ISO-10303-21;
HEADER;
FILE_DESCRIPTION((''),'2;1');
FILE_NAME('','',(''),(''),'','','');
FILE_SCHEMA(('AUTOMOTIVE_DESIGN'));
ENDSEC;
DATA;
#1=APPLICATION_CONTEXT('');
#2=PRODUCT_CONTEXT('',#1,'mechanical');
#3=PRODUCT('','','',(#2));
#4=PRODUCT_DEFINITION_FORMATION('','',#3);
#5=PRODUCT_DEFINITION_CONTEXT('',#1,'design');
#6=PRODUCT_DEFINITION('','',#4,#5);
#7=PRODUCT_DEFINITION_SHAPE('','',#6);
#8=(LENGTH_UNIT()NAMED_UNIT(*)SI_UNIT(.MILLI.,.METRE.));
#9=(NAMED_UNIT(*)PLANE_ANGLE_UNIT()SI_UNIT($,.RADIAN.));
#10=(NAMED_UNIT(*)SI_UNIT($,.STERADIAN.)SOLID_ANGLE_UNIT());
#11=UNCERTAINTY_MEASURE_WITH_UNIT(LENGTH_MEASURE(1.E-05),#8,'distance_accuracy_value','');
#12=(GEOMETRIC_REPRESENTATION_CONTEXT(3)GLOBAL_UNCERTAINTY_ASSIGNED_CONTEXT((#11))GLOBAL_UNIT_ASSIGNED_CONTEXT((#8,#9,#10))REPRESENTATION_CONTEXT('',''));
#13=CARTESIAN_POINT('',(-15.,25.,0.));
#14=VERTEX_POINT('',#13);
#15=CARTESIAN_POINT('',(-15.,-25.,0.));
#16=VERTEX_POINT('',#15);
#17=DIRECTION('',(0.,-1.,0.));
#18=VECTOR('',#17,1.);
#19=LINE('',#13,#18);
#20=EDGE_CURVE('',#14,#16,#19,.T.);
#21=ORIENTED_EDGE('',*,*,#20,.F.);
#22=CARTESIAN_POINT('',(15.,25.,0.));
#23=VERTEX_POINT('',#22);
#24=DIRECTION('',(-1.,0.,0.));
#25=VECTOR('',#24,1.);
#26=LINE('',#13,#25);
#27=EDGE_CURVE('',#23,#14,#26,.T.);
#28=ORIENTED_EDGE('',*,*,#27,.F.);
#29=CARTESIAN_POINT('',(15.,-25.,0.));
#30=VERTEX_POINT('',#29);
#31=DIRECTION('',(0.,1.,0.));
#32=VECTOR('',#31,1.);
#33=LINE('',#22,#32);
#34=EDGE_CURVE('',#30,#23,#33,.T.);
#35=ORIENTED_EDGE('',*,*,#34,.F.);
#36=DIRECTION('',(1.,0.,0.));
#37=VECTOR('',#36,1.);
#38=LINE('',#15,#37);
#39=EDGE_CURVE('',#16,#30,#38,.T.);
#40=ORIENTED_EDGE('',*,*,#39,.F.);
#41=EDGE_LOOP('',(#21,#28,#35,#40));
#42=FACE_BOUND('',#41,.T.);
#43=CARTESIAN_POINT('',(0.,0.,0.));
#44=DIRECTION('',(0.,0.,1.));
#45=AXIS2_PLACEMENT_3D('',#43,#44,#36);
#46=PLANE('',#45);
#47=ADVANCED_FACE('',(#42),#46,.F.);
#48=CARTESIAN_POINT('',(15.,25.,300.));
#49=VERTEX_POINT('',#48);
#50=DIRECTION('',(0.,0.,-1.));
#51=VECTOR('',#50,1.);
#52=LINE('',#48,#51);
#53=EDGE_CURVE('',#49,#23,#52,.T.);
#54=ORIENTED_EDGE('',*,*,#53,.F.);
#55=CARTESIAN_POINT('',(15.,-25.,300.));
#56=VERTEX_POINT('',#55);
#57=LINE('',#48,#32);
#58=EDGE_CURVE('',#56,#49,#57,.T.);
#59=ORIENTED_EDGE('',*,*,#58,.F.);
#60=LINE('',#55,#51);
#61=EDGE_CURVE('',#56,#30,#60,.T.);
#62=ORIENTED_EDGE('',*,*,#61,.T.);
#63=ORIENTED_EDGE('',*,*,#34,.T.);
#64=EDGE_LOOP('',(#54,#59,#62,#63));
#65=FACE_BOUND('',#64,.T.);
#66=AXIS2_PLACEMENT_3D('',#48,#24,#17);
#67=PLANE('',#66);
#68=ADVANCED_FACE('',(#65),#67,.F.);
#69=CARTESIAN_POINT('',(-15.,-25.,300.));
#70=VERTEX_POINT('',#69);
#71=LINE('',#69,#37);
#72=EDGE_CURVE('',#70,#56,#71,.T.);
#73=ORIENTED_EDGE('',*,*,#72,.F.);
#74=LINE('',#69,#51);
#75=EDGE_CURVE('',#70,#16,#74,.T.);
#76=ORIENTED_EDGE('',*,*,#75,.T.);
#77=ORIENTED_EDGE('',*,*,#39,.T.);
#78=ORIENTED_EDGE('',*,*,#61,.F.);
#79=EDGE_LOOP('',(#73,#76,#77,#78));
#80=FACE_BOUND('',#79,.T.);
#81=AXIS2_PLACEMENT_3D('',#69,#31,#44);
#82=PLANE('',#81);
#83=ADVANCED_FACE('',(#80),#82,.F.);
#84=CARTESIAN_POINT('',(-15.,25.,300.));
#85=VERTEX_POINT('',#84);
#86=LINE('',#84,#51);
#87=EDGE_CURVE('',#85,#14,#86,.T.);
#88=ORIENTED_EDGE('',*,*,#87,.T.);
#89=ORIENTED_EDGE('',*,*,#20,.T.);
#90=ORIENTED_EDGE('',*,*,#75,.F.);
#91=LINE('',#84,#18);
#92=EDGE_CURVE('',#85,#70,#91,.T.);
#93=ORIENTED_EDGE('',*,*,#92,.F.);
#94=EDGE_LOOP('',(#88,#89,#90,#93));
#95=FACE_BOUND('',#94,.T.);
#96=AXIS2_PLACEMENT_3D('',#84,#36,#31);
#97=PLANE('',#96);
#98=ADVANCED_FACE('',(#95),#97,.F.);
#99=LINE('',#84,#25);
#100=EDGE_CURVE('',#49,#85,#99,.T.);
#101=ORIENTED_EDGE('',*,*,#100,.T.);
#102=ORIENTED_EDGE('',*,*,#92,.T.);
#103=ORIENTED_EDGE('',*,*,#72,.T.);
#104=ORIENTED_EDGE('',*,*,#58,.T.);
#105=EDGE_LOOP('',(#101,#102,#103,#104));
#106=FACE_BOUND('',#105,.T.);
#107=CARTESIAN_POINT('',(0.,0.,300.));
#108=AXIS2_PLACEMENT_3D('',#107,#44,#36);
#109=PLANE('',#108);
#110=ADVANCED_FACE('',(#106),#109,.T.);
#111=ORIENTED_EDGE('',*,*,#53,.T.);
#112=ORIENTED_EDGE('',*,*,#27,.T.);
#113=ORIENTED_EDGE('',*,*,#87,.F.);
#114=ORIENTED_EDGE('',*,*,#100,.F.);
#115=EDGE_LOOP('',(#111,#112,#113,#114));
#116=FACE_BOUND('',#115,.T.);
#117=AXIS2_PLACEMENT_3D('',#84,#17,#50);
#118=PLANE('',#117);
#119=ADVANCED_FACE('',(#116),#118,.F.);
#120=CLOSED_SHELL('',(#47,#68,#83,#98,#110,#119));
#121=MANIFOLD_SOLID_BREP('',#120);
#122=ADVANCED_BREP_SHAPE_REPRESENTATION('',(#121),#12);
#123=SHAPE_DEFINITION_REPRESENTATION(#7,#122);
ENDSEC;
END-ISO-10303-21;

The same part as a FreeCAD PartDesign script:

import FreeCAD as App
import Part
import Sketcher

V = App.Vector
Q = App.Units.Quantity

doc = App.newDocument("Part")
body = doc.addObject("PartDesign::Body", "Body")

sketch1 = body.newObject("Sketcher::SketchObject", "Sketch")
sketch1.AttachmentSupport = (doc.getObject("XY_Plane"), [""])
sketch1.MapMode = "FlatFace"
sketch1.addGeometry(Part.LineSegment(V(-15, 25, 0), V(-15, -25, 0)), False)
sketch1.addGeometry(Part.LineSegment(V(-15, -25, 0), V(15, -25, 0)), False)
sketch1.addGeometry(Part.LineSegment(V(15, -25, 0), V(15, 25, 0)), False)
sketch1.addGeometry(Part.LineSegment(V(15, 25, 0), V(-15, 25, 0)), False)
sketch1.addConstraint(Sketcher.Constraint("Coincident", 0, 2, 1, 1))
sketch1.addConstraint(Sketcher.Constraint("Coincident", 1, 2, 2, 1))
sketch1.addConstraint(Sketcher.Constraint("Coincident", 2, 2, 3, 1))
sketch1.addConstraint(Sketcher.Constraint("Coincident", 3, 2, 0, 1))
sketch1.addConstraint(Sketcher.Constraint("Vertical", 0))
sketch1.addConstraint(Sketcher.Constraint("Horizontal", 1))
sketch1.addConstraint(Sketcher.Constraint("Vertical", 2))
sketch1.addConstraint(Sketcher.Constraint("Horizontal", 3))
sketch1.addConstraint(Sketcher.Constraint("Symmetric", 0, 2, 2, 2, -1, 1))
sketch1.addConstraint(Sketcher.Constraint("DistanceX", 1, 1, 1, 2, Q("30 mm")))
sketch1.addConstraint(Sketcher.Constraint("DistanceY", 0, 2, 0, 1, Q("50 mm")))
pad1 = body.newObject("PartDesign::Pad", "Pad")
pad1.Profile = sketch1
pad1.Length = 300

doc.recompute()
